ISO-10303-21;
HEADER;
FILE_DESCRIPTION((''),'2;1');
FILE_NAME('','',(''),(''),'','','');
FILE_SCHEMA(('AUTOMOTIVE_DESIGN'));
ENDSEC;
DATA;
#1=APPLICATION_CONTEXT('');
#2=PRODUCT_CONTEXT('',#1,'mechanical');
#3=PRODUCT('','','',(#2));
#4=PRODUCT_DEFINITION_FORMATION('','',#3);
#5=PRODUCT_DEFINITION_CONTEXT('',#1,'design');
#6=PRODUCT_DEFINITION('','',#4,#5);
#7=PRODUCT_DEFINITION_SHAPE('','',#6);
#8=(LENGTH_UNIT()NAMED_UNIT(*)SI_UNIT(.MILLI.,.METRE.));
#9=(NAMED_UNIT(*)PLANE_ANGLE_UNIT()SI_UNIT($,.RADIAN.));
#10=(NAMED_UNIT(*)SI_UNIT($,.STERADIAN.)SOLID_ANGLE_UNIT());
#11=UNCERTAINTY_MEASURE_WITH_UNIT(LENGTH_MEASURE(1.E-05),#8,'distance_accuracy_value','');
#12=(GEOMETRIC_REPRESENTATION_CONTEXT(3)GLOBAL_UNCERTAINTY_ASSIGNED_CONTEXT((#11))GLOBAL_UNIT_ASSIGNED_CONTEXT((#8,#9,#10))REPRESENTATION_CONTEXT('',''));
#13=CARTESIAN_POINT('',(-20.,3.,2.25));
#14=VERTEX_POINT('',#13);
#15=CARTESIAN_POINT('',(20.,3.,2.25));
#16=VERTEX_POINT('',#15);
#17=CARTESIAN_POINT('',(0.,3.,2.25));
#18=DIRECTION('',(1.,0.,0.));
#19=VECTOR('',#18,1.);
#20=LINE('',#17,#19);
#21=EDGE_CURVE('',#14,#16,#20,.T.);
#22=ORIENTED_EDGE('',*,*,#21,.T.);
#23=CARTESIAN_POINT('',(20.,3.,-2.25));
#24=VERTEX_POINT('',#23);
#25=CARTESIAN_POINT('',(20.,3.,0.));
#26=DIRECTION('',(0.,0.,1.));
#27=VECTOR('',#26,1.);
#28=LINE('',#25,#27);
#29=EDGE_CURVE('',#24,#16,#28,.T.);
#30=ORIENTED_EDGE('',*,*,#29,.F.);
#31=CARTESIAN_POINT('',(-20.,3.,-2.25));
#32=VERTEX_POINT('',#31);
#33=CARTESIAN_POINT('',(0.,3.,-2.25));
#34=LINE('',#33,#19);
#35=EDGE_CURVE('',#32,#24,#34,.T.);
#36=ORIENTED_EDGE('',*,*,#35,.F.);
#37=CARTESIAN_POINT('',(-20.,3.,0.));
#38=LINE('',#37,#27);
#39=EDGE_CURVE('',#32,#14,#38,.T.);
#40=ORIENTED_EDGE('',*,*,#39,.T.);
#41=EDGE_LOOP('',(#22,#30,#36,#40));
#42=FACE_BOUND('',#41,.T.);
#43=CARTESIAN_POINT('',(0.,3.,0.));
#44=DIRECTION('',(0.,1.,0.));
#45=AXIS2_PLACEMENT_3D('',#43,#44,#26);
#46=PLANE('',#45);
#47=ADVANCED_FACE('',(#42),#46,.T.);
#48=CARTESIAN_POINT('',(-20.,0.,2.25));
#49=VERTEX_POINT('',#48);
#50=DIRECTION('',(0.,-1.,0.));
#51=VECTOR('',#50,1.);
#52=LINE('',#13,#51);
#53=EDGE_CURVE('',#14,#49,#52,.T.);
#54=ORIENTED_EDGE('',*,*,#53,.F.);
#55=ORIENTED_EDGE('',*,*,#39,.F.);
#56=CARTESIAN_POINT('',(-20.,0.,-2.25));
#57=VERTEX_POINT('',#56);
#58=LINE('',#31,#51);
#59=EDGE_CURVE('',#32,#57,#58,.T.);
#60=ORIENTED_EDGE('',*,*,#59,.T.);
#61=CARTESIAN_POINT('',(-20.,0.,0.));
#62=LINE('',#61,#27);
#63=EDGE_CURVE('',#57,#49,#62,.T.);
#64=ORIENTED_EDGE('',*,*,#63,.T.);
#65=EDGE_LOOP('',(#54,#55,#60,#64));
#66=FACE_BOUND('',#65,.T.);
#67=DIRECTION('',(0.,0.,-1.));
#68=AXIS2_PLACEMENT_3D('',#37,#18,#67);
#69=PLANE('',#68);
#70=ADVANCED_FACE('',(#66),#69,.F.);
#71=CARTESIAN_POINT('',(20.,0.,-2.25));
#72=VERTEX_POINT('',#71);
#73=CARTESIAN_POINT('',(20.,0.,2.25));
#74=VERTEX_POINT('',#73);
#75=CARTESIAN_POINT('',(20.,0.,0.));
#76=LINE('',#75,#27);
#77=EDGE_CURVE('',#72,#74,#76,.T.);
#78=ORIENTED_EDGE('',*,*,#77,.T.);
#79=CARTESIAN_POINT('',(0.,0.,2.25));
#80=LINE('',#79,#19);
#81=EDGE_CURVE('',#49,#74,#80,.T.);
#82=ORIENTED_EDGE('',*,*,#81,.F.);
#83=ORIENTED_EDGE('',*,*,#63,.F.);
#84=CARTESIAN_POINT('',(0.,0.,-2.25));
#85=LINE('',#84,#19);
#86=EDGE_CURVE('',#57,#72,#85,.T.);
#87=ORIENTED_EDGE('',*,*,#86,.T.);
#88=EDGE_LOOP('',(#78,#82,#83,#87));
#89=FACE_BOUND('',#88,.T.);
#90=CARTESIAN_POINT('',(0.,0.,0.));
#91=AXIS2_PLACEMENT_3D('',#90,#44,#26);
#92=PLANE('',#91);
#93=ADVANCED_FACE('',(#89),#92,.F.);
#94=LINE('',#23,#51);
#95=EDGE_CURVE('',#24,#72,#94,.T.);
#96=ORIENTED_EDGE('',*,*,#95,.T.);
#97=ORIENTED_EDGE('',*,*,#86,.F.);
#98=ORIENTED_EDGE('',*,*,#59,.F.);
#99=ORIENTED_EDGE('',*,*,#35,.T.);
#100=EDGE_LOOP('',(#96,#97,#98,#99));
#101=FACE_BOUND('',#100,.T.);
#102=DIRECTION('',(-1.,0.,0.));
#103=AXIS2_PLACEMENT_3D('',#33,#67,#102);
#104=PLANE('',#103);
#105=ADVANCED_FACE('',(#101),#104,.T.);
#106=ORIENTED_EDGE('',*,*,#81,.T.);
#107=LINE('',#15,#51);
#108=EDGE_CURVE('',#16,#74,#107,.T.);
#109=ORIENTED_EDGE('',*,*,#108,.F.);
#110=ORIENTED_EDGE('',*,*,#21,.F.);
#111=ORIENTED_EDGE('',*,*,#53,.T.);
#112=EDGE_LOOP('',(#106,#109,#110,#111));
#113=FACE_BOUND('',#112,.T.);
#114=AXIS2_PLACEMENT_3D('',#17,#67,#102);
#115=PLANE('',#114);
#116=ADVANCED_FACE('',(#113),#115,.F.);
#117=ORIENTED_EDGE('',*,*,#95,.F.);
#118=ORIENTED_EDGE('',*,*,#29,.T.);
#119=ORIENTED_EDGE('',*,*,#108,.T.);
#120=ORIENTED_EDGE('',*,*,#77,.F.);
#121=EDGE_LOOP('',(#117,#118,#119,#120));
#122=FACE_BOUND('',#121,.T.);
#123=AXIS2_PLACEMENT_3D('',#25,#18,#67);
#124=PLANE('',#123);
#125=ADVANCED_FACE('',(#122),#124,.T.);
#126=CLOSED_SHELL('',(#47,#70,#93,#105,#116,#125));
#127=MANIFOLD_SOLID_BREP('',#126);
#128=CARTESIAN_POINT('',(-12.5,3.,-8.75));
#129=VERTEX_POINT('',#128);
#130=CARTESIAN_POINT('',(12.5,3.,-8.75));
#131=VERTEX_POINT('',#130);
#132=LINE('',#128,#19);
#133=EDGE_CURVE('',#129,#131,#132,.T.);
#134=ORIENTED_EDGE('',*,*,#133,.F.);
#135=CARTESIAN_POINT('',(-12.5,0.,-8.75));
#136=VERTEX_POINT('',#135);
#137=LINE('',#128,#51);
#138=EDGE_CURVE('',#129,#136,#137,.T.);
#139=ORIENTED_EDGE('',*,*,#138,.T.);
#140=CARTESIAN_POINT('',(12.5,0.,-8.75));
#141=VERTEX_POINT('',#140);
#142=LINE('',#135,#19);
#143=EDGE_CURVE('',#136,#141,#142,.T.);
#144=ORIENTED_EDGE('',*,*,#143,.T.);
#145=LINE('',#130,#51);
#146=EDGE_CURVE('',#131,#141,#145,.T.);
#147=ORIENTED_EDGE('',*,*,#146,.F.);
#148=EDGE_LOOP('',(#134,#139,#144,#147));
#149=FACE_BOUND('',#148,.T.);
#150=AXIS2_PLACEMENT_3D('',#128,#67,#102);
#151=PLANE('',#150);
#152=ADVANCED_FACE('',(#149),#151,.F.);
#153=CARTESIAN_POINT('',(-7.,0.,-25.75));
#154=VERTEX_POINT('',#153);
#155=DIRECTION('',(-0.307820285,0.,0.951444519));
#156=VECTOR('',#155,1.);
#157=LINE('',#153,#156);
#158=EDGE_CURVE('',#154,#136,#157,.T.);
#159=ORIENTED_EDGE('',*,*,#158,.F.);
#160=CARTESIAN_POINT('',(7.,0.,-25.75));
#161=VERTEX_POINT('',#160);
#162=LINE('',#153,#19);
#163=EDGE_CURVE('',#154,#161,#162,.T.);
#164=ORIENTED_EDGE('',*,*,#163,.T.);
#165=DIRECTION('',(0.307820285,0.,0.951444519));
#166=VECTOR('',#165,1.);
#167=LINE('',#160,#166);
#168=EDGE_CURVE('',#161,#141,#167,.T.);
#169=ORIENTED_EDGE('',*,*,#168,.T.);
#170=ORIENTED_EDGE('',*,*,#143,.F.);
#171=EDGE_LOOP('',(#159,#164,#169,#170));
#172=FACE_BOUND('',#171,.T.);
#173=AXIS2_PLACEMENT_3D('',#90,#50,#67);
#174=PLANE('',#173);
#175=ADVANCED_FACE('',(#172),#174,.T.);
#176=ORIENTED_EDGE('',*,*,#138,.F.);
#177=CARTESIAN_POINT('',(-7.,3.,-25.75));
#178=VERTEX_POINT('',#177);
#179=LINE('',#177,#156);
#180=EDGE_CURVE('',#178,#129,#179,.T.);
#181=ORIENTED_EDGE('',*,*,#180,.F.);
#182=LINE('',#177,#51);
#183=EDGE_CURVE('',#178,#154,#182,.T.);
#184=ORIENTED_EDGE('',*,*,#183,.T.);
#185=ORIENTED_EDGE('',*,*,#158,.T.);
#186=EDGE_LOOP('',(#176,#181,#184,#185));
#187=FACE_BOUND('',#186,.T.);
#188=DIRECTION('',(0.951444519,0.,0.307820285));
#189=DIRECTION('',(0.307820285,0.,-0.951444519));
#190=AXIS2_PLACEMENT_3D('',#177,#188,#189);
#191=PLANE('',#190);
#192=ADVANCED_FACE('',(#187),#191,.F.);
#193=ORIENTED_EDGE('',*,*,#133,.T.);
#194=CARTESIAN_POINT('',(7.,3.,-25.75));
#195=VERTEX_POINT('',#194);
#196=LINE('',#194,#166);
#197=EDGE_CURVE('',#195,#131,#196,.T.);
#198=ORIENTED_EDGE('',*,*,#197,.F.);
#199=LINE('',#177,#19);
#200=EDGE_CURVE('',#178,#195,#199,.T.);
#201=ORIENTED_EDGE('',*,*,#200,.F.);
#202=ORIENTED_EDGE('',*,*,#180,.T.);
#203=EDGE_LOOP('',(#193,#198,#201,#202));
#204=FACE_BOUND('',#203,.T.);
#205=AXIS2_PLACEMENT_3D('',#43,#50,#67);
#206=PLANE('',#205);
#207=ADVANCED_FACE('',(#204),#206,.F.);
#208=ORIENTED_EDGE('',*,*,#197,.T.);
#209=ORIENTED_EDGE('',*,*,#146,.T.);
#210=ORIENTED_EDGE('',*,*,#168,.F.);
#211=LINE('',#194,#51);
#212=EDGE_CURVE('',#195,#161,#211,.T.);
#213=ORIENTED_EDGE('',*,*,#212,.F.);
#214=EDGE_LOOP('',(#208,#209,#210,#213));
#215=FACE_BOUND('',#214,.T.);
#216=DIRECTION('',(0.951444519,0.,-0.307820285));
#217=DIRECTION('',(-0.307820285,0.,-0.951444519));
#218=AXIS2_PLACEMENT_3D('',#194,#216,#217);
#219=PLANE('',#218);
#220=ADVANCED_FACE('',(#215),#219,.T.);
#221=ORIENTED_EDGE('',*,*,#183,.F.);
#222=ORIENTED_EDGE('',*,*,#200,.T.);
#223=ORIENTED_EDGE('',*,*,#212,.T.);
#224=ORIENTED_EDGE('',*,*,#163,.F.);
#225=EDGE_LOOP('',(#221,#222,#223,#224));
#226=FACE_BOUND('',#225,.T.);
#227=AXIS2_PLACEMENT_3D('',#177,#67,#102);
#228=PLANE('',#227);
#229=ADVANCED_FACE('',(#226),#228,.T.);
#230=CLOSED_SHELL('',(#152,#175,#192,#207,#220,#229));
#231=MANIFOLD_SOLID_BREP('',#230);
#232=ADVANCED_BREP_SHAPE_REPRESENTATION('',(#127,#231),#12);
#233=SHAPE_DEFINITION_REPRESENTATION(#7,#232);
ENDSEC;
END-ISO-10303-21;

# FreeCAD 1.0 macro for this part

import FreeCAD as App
import Part
import Sketcher

V = App.Vector


def add_polygon(sketch, points):
    """Adds a closed chain of lines whose ends are joined by coincident constraints."""
    first, n = sketch.GeometryCount, len(points)
    for a, b in zip(points, points[1:] + points[:1]):
        sketch.addGeometry(Part.LineSegment(App.Vector(*a, 0), App.Vector(*b, 0)), False)
    for i in range(n):
        sketch.addConstraint(Sketcher.Constraint("Coincident", first + i, 2, first + (i + 1) % n, 1))

doc = App.newDocument("Part")
params = doc.addObject("Spreadsheet::Sheet", "Params")
for row, (alias, value) in enumerate([
    ("sketch1_width", "40 mm"),
    ("sketch1_height", "4.5 mm"),
    ("pad1_length", "3 mm"),
    ("sketch2_width", "14 mm"),
    ("sketch2_width2", "25 mm"),
    ("pad2_length", "3 mm"),
], start=1):
    params.set(f"A{row}", alias)
    params.set(f"B{row}", "=" + value)
    params.setAlias(f"B{row}", alias)

body = doc.addObject("PartDesign::Body", "Body")

sketch1 = body.newObject("Sketcher::SketchObject", "Sketch")
sketch1.AttachmentSupport = (doc.getObject("XZ_Plane"), [""])
sketch1.MapMode = "FlatFace"
add_polygon(sketch1, [(-20, -2.25), (-20, 2.25), (20, 2.25), (20, -2.25)])
sketch1.addConstraint(Sketcher.Constraint("Vertical", 0))
sketch1.addConstraint(Sketcher.Constraint("Horizontal", 1))
sketch1.addConstraint(Sketcher.Constraint("Vertical", 2))
sketch1.addConstraint(Sketcher.Constraint("Horizontal", 3))
sketch1.addConstraint(Sketcher.Constraint("Symmetric", 0, 2, 2, 2, -1, 1))
sketch1.addConstraint(Sketcher.Constraint("DistanceX", 1, 1, 1, 2, 40.0))
sketch1.addConstraint(Sketcher.Constraint("DistanceY", 0, 1, 0, 2, 4.5))
sketch1.setExpression("Constraints[9]", "Params.sketch1_width")
sketch1.setExpression("Constraints[10]", "Params.sketch1_height")
pad1 = body.newObject("PartDesign::Pad", "Pad")
pad1.Profile = sketch1
pad1.setExpression("Length", "Params.pad1_length")
pad1.Reversed = True
body2 = doc.addObject("PartDesign::Body", "Body001")

sketch2 = body2.newObject("Sketcher::SketchObject", "Sketch001")
sketch2.AttachmentSupport = (doc.getObject("XZ_Plane001"), [""])
sketch2.MapMode = "FlatFace"
add_polygon(sketch2, [(12.5, -8.75), (7, -25.75), (-7, -25.75), (-12.5, -8.75)])
sketch2.addConstraint(Sketcher.Constraint("Horizontal", 1))
sketch2.addConstraint(Sketcher.Constraint("Horizontal", 3))
sketch2.addConstraint(Sketcher.Constraint("Equal", 0, 2))
sketch2.addConstraint(Sketcher.Constraint("DistanceX", 1, 2, 1, 1, 14.0))
sketch2.addConstraint(Sketcher.Constraint("DistanceX", 3, 1, 3, 2, 25.0))
sketch2.addConstraint(Sketcher.Constraint("DistanceX", -1, 1, 0, 2, 7.0))
sketch2.addConstraint(Sketcher.Constraint("DistanceY", 1, 2, 2, 2, 17.0))
sketch2.addConstraint(Sketcher.Constraint("DistanceY", 0, 2, -1, 1, 25.75))
sketch2.setExpression("Constraints[7]", "Params.sketch2_width")
sketch2.setExpression("Constraints[8]", "Params.sketch2_width2")
pad2 = body2.newObject("PartDesign::Pad", "Pad001")
pad2.Profile = sketch2
pad2.setExpression("Length", "Params.pad2_length")
pad2.Reversed = True

doc.recompute()
